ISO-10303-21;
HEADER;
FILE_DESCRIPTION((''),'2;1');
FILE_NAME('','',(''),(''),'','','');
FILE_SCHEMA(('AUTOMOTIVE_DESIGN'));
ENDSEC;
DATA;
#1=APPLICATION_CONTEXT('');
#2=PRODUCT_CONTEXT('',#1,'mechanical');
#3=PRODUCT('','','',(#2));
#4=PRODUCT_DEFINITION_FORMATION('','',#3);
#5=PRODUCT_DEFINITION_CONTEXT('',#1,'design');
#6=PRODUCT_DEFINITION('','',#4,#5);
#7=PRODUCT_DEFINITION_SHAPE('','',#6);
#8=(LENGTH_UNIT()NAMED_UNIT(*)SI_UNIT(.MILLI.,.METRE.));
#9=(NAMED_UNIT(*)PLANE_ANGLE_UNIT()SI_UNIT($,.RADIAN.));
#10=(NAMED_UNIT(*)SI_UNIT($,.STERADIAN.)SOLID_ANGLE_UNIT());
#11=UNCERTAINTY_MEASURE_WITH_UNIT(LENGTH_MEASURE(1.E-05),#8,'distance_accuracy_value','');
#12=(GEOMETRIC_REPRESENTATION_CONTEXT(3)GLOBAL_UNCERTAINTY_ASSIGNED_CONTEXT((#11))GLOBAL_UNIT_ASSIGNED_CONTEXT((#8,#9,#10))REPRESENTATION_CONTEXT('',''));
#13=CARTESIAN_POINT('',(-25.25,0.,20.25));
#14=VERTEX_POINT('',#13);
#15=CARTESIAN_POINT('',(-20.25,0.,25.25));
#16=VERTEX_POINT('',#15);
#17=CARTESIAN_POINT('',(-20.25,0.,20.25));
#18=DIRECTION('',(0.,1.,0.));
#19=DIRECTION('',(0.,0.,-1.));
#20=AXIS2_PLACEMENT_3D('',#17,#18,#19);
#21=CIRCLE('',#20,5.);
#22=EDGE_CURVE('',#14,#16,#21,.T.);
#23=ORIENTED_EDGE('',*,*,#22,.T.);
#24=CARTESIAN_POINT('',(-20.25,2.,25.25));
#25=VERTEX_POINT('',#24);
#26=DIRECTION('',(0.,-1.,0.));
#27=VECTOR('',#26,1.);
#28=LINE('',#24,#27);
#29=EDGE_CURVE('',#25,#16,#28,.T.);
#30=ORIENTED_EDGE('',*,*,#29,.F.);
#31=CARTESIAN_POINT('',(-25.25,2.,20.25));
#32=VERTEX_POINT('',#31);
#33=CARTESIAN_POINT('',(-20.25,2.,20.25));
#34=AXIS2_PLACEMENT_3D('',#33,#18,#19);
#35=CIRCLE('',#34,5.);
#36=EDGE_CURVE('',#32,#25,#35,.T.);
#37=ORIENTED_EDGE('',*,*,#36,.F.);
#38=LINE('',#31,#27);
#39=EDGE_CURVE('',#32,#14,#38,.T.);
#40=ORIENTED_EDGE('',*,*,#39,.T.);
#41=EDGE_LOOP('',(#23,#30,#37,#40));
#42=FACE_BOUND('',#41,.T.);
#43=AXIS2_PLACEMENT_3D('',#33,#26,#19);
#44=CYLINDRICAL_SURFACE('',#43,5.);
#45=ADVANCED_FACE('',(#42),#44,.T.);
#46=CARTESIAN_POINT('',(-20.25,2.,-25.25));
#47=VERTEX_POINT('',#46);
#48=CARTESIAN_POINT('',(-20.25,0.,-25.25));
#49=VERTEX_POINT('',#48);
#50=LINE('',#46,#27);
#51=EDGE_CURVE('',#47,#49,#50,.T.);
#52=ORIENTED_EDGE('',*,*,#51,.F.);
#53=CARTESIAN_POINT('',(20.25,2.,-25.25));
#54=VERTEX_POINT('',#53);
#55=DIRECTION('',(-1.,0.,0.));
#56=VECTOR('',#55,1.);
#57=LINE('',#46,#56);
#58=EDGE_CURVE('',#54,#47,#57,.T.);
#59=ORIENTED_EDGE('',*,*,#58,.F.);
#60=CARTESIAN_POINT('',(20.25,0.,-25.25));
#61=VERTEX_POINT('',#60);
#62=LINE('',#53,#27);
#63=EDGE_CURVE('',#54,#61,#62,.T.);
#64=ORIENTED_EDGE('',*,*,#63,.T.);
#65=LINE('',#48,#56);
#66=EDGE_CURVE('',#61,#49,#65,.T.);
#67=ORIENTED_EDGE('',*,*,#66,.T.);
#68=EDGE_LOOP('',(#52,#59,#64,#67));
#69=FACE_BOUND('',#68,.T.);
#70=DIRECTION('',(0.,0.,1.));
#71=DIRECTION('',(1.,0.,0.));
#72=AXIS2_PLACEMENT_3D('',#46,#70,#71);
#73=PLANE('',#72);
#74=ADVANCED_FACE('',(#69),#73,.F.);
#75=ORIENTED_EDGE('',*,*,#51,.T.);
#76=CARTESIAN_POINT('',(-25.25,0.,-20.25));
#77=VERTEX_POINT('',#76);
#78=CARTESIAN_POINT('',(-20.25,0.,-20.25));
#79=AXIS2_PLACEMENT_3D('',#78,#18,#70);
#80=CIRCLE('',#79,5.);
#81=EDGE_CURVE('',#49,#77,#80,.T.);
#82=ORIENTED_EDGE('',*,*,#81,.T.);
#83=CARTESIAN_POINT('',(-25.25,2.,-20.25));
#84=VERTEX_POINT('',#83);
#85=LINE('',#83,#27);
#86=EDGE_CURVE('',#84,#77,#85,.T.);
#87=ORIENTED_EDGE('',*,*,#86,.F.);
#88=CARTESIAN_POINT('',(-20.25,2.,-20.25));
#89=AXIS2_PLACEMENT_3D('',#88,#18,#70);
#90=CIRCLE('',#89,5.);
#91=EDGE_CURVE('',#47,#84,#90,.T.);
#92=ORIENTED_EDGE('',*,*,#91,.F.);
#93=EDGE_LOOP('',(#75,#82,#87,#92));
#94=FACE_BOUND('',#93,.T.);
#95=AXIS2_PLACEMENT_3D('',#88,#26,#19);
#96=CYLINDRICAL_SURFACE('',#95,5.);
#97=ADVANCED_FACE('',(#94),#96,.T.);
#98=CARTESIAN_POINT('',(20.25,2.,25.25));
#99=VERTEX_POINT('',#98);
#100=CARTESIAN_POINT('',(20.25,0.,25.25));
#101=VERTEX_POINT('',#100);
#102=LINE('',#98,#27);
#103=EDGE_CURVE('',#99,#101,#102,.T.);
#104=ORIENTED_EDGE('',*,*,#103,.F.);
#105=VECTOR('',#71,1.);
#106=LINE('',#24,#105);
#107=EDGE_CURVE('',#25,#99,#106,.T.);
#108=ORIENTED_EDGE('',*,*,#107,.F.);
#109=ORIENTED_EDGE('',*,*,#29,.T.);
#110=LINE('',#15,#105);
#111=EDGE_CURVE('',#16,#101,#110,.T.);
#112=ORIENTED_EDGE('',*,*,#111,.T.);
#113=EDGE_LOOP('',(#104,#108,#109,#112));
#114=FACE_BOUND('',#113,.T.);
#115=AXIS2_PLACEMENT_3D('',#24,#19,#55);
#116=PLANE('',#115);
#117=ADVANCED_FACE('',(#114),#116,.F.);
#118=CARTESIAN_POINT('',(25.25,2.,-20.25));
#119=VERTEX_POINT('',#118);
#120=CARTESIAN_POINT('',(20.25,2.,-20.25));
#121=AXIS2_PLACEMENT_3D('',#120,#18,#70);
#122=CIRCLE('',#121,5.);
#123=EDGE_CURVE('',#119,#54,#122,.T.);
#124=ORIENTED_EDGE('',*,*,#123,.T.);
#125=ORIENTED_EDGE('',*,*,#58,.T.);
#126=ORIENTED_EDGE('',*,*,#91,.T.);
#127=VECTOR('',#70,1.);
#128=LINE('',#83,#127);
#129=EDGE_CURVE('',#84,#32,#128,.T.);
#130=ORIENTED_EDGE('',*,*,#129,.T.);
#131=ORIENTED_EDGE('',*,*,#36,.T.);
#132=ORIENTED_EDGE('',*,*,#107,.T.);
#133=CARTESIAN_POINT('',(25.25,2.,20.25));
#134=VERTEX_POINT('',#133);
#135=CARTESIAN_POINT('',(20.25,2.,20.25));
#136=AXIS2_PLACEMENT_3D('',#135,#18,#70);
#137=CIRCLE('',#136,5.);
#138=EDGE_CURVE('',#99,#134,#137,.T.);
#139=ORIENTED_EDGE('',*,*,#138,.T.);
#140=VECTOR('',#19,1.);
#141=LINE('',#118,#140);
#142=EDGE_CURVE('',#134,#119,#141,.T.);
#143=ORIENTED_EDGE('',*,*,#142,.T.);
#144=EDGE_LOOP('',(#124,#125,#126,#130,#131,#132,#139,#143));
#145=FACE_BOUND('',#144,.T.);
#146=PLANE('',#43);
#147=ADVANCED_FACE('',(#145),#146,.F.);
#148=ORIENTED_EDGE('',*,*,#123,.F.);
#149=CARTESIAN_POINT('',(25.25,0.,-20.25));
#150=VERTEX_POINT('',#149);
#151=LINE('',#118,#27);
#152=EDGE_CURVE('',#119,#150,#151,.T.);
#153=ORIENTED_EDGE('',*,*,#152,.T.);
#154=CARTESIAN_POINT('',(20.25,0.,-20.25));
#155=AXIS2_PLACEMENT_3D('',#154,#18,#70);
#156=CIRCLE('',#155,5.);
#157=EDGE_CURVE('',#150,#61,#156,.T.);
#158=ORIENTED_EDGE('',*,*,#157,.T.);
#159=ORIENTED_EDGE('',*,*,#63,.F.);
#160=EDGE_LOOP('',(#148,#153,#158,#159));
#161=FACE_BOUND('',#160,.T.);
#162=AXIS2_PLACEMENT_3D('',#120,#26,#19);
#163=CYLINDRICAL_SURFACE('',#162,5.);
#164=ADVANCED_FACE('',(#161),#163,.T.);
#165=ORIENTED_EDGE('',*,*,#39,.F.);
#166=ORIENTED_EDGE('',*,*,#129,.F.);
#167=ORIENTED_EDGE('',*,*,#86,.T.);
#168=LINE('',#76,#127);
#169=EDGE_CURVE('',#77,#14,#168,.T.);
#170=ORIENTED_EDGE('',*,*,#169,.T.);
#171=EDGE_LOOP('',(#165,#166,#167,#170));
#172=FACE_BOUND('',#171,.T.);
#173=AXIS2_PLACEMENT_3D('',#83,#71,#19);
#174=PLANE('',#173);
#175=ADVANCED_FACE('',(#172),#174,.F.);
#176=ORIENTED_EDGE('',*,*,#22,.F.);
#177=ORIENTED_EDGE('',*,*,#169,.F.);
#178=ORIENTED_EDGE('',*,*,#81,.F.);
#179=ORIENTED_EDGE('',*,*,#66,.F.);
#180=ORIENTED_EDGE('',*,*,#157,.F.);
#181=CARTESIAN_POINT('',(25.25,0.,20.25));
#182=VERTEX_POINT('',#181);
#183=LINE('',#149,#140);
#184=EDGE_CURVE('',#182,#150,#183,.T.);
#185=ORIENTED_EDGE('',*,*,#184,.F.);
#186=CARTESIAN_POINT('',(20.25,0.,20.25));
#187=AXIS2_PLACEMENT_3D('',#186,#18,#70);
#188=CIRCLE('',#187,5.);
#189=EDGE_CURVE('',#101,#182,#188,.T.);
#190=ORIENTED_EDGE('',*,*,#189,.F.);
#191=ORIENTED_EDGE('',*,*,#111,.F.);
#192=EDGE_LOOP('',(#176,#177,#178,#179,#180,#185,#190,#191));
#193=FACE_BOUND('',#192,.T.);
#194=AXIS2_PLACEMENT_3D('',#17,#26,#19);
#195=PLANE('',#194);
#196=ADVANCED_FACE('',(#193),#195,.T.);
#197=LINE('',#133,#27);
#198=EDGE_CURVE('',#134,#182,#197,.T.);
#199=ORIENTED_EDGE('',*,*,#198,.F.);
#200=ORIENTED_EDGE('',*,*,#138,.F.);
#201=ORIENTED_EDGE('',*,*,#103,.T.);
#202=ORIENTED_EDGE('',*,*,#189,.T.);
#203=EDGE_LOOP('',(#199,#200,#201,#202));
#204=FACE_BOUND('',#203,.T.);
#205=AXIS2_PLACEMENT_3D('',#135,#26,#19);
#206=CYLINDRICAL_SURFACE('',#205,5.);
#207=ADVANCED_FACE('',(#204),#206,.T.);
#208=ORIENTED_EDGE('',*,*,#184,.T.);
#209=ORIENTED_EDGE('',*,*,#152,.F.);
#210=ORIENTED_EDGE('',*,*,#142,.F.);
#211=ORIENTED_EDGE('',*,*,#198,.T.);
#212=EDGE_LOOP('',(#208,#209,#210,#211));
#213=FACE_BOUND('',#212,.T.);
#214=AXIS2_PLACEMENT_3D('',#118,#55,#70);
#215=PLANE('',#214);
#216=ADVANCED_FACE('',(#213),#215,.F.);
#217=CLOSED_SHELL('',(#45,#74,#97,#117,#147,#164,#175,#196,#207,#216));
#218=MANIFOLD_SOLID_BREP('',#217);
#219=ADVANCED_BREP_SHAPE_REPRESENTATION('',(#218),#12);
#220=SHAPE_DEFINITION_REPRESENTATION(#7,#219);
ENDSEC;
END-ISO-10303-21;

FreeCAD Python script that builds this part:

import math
import FreeCAD as App
import Part
import Sketcher
Q = App.Units.Quantity

doc = App.newDocument("Part")
body = doc.addObject("PartDesign::Body", "Body")

# Sketch on XZ plane
sketch1 = body.newObject("Sketcher::SketchObject", "Sketch")
sketch1.AttachmentSupport = (doc.getObject("XZ_Plane"), [""])
sketch1.MapMode = "FlatFace"
sketch1.addGeometry([
    Part.LineSegment(App.Vector(20, -25, 0), App.Vector(-20, -25, 0)),  # 0
    Part.ArcOfCircle(Part.Circle(App.Vector(-20, -20, 0), App.Vector(0, 0, 1), 5), math.radians(180), math.radians(270)),  # 1
    Part.LineSegment(App.Vector(-25, -20, 0), App.Vector(-25, 20, 0)),  # 2
    Part.ArcOfCircle(Part.Circle(App.Vector(-20, 20, 0), App.Vector(0, 0, 1), 5), math.radians(90), math.radians(180)),  # 3
    Part.LineSegment(App.Vector(-20, 25, 0), App.Vector(20, 25, 0)),  # 4
    Part.ArcOfCircle(Part.Circle(App.Vector(20, 20, 0), App.Vector(0, 0, 1), 5), math.radians(0), math.radians(90)),  # 5
    Part.LineSegment(App.Vector(25, 20, 0), App.Vector(25, -20, 0)),  # 6
    Part.ArcOfCircle(Part.Circle(App.Vector(20, -20, 0), App.Vector(0, 0, 1), 5), math.radians(-90), math.radians(0)),  # 7
], False)
sketch1.addConstraint([
    Sketcher.Constraint("Tangent", 0, 2, 1, 2),
    Sketcher.Constraint("Tangent", 1, 1, 2, 1),
    Sketcher.Constraint("Tangent", 2, 2, 3, 2),
    Sketcher.Constraint("Tangent", 3, 1, 4, 1),
    Sketcher.Constraint("Tangent", 4, 2, 5, 2),
    Sketcher.Constraint("Tangent", 5, 1, 6, 1),
    Sketcher.Constraint("Tangent", 6, 2, 7, 2),
    Sketcher.Constraint("Tangent", 7, 1, 0, 1),
    Sketcher.Constraint("Horizontal", 0),
    Sketcher.Constraint("Vertical", 2),
    Sketcher.Constraint("Horizontal", 4),
    Sketcher.Constraint("Vertical", 6),
    Sketcher.Constraint("Equal", 1, 3),
    Sketcher.Constraint("Equal", 3, 5),
    Sketcher.Constraint("Equal", 5, 7),
    Sketcher.Constraint("Symmetric", 1, 3, 5, 3, -1, 1),
    Sketcher.Constraint("Equal", 4, 2),
    Sketcher.Constraint("Radius", 1, Q("5 mm")),
    Sketcher.Constraint("DistanceX", 0, 2, 0, 1, Q("40.5 mm")),
])
pad1 = body.newObject("PartDesign::Pad", "Pad")
pad1.Profile = sketch1
pad1.Length = 2
pad1.Reversed = True

doc.recompute()
